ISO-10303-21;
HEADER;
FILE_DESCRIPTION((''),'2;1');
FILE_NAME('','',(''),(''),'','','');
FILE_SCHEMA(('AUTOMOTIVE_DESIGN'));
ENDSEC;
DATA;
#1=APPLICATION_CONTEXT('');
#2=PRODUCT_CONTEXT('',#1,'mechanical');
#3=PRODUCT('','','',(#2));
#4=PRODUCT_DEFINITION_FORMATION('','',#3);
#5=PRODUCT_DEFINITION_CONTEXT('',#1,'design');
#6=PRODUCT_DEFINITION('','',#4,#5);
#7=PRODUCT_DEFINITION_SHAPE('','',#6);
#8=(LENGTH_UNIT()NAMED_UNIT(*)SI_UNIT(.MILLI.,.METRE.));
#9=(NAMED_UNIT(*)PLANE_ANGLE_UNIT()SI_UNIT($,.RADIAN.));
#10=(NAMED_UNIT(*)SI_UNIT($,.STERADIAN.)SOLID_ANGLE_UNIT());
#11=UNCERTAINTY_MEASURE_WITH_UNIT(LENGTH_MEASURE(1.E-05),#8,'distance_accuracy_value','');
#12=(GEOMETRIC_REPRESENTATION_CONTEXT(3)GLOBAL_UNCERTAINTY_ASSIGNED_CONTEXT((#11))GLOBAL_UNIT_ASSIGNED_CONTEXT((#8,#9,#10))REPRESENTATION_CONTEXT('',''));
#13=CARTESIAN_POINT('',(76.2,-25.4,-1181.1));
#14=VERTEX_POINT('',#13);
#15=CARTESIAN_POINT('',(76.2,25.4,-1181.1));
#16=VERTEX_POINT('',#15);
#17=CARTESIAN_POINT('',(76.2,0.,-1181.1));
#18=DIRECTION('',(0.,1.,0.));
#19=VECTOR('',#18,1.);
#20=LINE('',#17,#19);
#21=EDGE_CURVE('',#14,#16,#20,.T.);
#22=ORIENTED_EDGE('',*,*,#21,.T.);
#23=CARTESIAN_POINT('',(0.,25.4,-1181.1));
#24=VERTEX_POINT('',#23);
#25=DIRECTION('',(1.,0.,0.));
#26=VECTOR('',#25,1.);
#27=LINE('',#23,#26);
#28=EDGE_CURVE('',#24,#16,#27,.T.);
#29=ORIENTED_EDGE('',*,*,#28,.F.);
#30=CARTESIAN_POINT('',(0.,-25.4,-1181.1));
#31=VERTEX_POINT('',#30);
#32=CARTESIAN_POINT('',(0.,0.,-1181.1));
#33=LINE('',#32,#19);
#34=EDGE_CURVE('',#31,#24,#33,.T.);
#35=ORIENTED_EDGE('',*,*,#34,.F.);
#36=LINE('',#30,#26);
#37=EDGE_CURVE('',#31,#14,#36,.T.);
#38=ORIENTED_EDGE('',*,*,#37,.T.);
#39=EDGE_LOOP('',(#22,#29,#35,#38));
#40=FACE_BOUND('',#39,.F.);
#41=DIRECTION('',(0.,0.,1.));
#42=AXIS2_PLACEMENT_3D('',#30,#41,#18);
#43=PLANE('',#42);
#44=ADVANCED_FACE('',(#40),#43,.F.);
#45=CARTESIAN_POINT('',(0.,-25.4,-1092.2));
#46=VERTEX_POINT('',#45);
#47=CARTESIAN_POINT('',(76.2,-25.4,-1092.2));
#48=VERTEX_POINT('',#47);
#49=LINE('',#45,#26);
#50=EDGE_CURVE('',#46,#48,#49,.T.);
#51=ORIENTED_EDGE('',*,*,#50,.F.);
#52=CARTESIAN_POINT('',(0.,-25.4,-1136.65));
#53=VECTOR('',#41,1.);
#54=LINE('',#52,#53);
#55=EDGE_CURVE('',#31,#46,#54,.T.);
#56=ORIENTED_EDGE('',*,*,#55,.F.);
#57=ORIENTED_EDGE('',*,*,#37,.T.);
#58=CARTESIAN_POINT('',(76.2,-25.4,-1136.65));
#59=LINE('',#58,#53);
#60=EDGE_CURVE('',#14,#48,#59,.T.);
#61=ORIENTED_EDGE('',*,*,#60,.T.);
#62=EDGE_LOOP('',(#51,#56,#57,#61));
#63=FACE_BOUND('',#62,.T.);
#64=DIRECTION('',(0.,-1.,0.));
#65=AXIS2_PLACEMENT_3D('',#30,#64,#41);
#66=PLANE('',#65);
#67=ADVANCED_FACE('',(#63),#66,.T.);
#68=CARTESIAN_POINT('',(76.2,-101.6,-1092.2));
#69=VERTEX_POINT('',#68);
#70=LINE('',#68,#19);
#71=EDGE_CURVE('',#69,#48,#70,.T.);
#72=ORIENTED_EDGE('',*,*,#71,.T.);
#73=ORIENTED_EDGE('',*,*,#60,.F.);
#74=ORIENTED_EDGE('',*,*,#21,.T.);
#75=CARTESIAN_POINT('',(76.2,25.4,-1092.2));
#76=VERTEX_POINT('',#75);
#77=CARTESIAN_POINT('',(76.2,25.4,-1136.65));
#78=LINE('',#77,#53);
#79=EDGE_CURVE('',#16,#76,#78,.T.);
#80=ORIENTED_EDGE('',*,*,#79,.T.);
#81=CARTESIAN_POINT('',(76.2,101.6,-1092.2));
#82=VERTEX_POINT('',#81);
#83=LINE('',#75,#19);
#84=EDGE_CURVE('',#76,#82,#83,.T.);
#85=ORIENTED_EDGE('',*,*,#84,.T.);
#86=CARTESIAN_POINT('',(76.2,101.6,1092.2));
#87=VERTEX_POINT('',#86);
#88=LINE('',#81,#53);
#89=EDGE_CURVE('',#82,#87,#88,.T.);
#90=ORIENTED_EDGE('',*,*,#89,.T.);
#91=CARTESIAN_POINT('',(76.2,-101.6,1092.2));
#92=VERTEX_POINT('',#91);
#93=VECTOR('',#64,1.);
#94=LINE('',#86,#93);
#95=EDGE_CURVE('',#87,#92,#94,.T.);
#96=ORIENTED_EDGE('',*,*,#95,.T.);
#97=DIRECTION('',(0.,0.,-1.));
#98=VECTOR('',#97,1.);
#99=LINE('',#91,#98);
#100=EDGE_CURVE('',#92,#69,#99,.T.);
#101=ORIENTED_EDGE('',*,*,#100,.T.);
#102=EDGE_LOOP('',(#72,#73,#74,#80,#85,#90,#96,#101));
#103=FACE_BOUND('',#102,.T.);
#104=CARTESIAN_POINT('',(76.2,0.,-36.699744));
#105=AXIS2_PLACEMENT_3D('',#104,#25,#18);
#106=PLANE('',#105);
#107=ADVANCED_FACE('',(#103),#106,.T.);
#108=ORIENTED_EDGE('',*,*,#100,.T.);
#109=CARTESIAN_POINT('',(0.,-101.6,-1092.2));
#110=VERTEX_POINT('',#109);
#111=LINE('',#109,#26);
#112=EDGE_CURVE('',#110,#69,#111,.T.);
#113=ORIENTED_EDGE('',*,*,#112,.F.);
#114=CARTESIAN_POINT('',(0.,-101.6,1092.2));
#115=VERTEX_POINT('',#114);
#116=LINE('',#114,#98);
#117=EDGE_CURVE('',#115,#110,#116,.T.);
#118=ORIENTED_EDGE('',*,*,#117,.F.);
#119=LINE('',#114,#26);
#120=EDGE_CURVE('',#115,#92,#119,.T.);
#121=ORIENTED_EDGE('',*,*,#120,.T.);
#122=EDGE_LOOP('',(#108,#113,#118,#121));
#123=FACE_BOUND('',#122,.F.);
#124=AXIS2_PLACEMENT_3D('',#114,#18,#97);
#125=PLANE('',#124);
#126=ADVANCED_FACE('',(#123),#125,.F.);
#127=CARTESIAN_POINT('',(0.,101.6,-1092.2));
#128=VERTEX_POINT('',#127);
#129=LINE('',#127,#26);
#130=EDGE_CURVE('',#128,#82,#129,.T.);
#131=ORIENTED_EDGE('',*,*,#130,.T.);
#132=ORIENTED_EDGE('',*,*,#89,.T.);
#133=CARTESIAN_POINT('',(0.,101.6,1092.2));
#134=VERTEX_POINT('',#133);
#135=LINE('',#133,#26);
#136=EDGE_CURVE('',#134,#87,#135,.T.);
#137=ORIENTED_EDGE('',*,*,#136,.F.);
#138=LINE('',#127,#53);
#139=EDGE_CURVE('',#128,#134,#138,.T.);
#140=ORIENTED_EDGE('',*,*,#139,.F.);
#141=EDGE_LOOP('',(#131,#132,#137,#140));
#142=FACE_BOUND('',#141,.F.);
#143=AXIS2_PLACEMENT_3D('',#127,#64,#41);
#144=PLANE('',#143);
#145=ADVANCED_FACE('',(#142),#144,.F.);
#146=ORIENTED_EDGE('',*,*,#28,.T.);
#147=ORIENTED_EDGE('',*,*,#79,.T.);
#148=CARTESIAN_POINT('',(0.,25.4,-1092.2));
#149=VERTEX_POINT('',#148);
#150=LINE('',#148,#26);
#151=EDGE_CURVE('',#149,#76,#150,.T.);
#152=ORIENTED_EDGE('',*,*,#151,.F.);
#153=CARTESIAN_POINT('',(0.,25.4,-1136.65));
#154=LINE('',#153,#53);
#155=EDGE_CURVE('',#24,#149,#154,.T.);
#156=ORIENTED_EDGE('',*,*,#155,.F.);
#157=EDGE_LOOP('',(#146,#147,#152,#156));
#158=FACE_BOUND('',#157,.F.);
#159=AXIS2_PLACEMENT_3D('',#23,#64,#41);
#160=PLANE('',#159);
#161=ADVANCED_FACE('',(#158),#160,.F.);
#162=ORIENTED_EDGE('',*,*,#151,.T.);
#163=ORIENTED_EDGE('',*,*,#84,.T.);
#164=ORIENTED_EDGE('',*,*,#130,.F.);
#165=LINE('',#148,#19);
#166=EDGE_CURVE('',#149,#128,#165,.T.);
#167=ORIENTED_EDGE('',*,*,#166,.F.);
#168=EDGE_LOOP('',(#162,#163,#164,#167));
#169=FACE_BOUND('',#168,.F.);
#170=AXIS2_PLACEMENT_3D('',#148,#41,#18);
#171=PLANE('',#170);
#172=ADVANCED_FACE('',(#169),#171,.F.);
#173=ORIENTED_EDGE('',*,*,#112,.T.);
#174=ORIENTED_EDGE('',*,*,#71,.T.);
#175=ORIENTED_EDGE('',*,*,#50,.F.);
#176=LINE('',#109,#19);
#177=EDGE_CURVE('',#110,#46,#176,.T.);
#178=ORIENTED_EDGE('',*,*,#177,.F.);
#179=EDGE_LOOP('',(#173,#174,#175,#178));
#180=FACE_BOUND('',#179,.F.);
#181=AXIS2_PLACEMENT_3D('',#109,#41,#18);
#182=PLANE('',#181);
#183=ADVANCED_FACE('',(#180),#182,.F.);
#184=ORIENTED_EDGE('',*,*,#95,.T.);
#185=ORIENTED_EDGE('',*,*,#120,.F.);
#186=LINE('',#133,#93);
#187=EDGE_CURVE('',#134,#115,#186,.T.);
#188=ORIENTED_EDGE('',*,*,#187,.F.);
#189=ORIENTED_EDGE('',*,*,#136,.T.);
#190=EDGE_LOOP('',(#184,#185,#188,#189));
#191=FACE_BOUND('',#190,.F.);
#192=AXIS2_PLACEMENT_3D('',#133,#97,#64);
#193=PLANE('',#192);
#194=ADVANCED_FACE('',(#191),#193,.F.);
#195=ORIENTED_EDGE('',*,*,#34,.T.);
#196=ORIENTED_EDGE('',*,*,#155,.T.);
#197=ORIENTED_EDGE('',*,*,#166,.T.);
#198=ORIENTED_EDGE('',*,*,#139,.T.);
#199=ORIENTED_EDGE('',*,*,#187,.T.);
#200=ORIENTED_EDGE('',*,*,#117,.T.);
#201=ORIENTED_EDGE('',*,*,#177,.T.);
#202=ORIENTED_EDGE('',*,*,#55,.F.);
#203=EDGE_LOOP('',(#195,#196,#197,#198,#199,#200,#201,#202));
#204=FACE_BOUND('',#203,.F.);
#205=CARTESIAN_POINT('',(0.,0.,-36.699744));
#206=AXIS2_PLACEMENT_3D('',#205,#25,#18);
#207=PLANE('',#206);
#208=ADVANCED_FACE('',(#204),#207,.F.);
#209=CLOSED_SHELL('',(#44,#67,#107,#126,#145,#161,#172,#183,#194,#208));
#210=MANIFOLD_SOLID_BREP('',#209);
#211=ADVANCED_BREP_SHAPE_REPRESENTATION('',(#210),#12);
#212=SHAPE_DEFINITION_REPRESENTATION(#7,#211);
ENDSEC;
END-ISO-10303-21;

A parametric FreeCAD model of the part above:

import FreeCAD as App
import Part
import Sketcher
from FreeCAD import Vector
Q = App.Units.Quantity

doc = App.newDocument("Part")
params = doc.addObject("Spreadsheet::Sheet", "Params")
for row, (alias, value) in enumerate([
    ("sketch1_width", "8 in"),
    ("sketch1_width2", "3 in"),
    ("sketch1_height", "86 in"),
    ("sketch1_height2", "3.5 in"),
    ("pad1_length", "3 in"),
], start=1):
    params.set(f"A{row}", alias)
    params.set(f"B{row}", "=" + value)
    params.setAlias(f"B{row}", alias)

body = doc.addObject("PartDesign::Body", "Body")

# Sketch on YZ plane
sketch1 = body.newObject("Sketcher::SketchObject", "Sketch")
sketch1.AttachmentSupport = (doc.getObject("YZ_Plane"), [""])
sketch1.MapMode = "FlatFace"
sketch1.addGeometry([
    Part.LineSegment(Vector(101.6, -1092.2, 0), Vector(101.6, 1092.2, 0)),  # 0
    Part.LineSegment(Vector(101.6, 1092.2, 0), Vector(-101.6, 1092.2, 0)),  # 1
    Part.LineSegment(Vector(-101.6, 1092.2, 0), Vector(-101.6, -1092.2, 0)),  # 2
    Part.LineSegment(Vector(-101.6, -1092.2, 0), Vector(-25.4, -1092.2, 0)),  # 3
    Part.LineSegment(Vector(-25.4, -1092.2, 0), Vector(-25.4, -1181.1, 0)),  # 4
    Part.LineSegment(Vector(-25.4, -1181.1, 0), Vector(25.4, -1181.1, 0)),  # 5
    Part.LineSegment(Vector(25.4, -1181.1, 0), Vector(25.4, -1092.2, 0)),  # 6
    Part.LineSegment(Vector(25.4, -1092.2, 0), Vector(101.6, -1092.2, 0)),  # 7
], False)
sketch1.addConstraint([
    Sketcher.Constraint("Coincident", 0, 2, 1, 1),
    Sketcher.Constraint("Coincident", 1, 2, 2, 1),
    Sketcher.Constraint("Coincident", 2, 2, 3, 1),
    Sketcher.Constraint("Coincident", 3, 2, 4, 1),
    Sketcher.Constraint("Coincident", 4, 2, 5, 1),
    Sketcher.Constraint("Coincident", 5, 2, 6, 1),
    Sketcher.Constraint("Coincident", 6, 2, 7, 1),
    Sketcher.Constraint("Coincident", 7, 2, 0, 1),
    Sketcher.Constraint("Vertical", 0),
    Sketcher.Constraint("Horizontal", 1),
    Sketcher.Constraint("Vertical", 2),
    Sketcher.Constraint("Horizontal", 3),
    Sketcher.Constraint("Vertical", 4),
    Sketcher.Constraint("Horizontal", 5),
    Sketcher.Constraint("Vertical", 6),
    Sketcher.Constraint("Horizontal", 7),
    Sketcher.Constraint("Symmetric", 0, 2, 2, 2, -1, 1),
    Sketcher.Constraint("Symmetric", 3, 2, 6, 2, -2),
    Sketcher.Constraint("DistanceX", 1, 2, 1, 1, Q("8 in")),
    Sketcher.Constraint("DistanceX", 3, 1, 3, 2, Q("3 in")),
    Sketcher.Constraint("DistanceY", 0, 1, 0, 2, Q("86 in")),
    Sketcher.Constraint("DistanceY", 4, 2, 4, 1, Q("3.5 in")),
])
sketch1.setExpression("Constraints[18]", "Params.sketch1_width")
sketch1.setExpression("Constraints[19]", "Params.sketch1_width2")
sketch1.setExpression("Constraints[20]", "Params.sketch1_height")
sketch1.setExpression("Constraints[21]", "Params.sketch1_height2")
pad1 = body.newObject("PartDesign::Pad", "Pad")
pad1.Profile = sketch1
pad1.setExpression("Length", "Params.pad1_length")

doc.recompute()
